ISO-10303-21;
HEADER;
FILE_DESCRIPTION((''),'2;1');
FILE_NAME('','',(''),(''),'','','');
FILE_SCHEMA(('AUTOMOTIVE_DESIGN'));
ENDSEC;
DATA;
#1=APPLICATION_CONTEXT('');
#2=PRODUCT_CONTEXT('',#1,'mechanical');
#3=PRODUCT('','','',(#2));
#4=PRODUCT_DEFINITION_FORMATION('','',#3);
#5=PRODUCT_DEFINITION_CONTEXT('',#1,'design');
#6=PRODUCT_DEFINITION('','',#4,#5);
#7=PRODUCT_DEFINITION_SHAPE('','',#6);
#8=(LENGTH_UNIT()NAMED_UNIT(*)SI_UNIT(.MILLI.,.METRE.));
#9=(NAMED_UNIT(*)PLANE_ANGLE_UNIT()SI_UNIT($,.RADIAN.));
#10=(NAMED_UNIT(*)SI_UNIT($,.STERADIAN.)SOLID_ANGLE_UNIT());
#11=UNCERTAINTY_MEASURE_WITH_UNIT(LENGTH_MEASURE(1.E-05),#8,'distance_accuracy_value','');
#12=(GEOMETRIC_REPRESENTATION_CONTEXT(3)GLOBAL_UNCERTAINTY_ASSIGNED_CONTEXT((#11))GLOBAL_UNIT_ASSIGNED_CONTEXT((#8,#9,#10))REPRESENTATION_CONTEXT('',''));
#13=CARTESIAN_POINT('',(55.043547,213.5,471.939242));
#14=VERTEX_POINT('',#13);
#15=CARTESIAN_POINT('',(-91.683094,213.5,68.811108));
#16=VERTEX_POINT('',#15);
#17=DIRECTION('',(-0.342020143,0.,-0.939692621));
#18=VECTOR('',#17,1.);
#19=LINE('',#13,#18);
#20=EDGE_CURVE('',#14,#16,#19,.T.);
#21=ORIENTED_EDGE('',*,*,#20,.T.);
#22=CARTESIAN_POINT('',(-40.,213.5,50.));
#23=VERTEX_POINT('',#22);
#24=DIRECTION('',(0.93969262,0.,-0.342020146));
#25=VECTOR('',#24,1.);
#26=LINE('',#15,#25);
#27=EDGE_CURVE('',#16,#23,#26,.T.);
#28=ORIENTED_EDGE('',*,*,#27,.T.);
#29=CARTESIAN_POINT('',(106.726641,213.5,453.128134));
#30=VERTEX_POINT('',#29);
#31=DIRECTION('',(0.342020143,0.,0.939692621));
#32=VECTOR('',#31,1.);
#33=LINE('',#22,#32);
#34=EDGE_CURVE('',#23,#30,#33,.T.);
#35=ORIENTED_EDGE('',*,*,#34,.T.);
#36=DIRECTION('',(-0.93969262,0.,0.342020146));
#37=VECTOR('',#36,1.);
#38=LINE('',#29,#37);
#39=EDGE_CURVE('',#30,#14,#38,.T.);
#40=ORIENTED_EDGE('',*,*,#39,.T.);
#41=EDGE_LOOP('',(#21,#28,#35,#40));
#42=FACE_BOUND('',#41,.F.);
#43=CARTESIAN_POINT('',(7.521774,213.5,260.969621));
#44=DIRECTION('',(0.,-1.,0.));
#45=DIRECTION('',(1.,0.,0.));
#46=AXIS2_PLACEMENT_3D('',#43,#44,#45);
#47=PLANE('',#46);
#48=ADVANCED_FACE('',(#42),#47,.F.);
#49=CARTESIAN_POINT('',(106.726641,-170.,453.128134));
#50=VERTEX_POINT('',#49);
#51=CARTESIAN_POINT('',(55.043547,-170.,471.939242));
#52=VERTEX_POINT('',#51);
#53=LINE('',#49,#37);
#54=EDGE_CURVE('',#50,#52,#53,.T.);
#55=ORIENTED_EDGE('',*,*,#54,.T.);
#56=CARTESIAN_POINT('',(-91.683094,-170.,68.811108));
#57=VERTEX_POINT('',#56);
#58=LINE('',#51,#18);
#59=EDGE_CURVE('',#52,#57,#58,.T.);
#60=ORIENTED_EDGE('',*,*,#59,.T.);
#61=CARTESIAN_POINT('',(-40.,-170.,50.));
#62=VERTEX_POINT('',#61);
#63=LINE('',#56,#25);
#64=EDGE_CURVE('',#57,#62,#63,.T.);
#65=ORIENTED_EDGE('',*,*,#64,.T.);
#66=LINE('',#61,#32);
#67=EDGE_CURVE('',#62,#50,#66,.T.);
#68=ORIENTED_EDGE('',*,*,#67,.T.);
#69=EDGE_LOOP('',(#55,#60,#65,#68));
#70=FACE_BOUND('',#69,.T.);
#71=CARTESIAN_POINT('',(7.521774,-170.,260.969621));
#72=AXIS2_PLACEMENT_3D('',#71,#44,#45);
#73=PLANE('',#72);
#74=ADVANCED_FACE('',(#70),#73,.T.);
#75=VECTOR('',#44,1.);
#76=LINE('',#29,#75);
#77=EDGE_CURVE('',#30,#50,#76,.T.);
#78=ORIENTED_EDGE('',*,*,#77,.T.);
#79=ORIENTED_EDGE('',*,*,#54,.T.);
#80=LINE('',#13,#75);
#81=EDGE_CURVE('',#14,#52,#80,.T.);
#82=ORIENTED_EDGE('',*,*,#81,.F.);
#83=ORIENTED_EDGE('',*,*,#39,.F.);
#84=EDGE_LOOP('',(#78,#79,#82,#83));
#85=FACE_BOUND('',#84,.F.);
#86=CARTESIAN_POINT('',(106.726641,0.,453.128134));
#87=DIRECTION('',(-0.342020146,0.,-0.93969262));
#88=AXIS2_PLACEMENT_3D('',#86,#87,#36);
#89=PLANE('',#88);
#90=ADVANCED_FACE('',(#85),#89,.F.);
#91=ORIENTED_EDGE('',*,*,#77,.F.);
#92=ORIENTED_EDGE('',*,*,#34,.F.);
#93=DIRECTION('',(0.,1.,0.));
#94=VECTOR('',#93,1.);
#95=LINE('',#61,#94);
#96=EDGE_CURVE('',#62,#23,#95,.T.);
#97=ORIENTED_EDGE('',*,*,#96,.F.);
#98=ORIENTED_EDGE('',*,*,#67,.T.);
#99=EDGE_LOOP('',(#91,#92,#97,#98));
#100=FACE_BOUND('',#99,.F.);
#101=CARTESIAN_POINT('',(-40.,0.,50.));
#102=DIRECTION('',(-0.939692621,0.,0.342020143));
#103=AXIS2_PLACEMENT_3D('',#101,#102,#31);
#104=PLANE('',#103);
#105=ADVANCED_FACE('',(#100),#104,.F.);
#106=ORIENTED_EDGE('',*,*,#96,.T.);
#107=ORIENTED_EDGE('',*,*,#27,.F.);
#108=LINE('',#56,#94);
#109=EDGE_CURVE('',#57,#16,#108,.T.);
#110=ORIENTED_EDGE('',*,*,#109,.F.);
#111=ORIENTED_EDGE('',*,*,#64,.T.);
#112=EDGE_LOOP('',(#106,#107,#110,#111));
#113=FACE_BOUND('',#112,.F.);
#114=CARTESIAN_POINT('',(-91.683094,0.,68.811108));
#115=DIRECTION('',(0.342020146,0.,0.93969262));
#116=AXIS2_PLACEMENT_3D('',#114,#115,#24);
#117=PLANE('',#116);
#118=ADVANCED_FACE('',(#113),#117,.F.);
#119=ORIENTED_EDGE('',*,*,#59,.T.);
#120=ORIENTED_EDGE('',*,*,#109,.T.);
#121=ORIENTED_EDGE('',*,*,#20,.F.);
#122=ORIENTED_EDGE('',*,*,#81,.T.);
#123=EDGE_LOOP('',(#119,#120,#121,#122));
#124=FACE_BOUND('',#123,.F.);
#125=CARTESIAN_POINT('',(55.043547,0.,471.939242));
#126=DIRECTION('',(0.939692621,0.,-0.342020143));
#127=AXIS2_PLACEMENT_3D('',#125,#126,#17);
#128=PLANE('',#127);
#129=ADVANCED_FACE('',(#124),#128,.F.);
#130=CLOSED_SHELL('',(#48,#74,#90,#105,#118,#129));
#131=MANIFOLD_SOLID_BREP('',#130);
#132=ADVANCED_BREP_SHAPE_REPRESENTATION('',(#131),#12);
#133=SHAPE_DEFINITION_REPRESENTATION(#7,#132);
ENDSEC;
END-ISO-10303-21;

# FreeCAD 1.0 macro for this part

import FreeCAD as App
import Part
import Sketcher

V = App.Vector
Q = App.Units.Quantity

doc = App.newDocument("Part")
body = doc.addObject("PartDesign::Body", "Body")

# Sketch on XZ plane
sketch1 = doc.addObject("Sketcher::SketchObject", "Sketch")
body.addObject(sketch1)
sketch1.AttachmentSupport = (doc.XZ_Plane, [""])
sketch1.MapMode = "FlatFace"
sketch1.addGeometry([
    Part.LineSegment(V(107, 453, 0), V(-40, 50, 0)),
    Part.LineSegment(V(-40, 50, 0), V(-92, 69, 0)),
    Part.LineSegment(V(-92, 69, 0), V(55, 472, 0)),
    Part.LineSegment(V(55, 472, 0), V(107, 453, 0)),
], False)
sketch1.addConstraint([
    Sketcher.Constraint("Coincident", 0, 2, 1, 1),
    Sketcher.Constraint("Coincident", 1, 2, 2, 1),
    Sketcher.Constraint("Coincident", 2, 2, 3, 1),
    Sketcher.Constraint("Coincident", 3, 2, 0, 1),
    Sketcher.Constraint("Perpendicular", 0, 1),
    Sketcher.Constraint("Perpendicular", 1, 2),
    Sketcher.Constraint("Perpendicular", 2, 3),
    Sketcher.Constraint("Angle", 0, Q("-110 deg")),
    Sketcher.Constraint("Distance", 0, Q("429 mm")),
    Sketcher.Constraint("Distance", 1, Q("55 mm")),
    Sketcher.Constraint("DistanceX", 0, 2, -1, 1, Q("40 mm")),
    Sketcher.Constraint("DistanceY", -1, 1, 0, 2, Q("50 mm")),
])
pad1 = doc.addObject("PartDesign::Pad", "Pad")
body.addObject(pad1)
pad1.Profile = sketch1
pad1.Type = "TwoLengths"
pad1.Length = 213.5
pad1.Length2 = 170
pad1.Reversed = True

doc.recompute()
